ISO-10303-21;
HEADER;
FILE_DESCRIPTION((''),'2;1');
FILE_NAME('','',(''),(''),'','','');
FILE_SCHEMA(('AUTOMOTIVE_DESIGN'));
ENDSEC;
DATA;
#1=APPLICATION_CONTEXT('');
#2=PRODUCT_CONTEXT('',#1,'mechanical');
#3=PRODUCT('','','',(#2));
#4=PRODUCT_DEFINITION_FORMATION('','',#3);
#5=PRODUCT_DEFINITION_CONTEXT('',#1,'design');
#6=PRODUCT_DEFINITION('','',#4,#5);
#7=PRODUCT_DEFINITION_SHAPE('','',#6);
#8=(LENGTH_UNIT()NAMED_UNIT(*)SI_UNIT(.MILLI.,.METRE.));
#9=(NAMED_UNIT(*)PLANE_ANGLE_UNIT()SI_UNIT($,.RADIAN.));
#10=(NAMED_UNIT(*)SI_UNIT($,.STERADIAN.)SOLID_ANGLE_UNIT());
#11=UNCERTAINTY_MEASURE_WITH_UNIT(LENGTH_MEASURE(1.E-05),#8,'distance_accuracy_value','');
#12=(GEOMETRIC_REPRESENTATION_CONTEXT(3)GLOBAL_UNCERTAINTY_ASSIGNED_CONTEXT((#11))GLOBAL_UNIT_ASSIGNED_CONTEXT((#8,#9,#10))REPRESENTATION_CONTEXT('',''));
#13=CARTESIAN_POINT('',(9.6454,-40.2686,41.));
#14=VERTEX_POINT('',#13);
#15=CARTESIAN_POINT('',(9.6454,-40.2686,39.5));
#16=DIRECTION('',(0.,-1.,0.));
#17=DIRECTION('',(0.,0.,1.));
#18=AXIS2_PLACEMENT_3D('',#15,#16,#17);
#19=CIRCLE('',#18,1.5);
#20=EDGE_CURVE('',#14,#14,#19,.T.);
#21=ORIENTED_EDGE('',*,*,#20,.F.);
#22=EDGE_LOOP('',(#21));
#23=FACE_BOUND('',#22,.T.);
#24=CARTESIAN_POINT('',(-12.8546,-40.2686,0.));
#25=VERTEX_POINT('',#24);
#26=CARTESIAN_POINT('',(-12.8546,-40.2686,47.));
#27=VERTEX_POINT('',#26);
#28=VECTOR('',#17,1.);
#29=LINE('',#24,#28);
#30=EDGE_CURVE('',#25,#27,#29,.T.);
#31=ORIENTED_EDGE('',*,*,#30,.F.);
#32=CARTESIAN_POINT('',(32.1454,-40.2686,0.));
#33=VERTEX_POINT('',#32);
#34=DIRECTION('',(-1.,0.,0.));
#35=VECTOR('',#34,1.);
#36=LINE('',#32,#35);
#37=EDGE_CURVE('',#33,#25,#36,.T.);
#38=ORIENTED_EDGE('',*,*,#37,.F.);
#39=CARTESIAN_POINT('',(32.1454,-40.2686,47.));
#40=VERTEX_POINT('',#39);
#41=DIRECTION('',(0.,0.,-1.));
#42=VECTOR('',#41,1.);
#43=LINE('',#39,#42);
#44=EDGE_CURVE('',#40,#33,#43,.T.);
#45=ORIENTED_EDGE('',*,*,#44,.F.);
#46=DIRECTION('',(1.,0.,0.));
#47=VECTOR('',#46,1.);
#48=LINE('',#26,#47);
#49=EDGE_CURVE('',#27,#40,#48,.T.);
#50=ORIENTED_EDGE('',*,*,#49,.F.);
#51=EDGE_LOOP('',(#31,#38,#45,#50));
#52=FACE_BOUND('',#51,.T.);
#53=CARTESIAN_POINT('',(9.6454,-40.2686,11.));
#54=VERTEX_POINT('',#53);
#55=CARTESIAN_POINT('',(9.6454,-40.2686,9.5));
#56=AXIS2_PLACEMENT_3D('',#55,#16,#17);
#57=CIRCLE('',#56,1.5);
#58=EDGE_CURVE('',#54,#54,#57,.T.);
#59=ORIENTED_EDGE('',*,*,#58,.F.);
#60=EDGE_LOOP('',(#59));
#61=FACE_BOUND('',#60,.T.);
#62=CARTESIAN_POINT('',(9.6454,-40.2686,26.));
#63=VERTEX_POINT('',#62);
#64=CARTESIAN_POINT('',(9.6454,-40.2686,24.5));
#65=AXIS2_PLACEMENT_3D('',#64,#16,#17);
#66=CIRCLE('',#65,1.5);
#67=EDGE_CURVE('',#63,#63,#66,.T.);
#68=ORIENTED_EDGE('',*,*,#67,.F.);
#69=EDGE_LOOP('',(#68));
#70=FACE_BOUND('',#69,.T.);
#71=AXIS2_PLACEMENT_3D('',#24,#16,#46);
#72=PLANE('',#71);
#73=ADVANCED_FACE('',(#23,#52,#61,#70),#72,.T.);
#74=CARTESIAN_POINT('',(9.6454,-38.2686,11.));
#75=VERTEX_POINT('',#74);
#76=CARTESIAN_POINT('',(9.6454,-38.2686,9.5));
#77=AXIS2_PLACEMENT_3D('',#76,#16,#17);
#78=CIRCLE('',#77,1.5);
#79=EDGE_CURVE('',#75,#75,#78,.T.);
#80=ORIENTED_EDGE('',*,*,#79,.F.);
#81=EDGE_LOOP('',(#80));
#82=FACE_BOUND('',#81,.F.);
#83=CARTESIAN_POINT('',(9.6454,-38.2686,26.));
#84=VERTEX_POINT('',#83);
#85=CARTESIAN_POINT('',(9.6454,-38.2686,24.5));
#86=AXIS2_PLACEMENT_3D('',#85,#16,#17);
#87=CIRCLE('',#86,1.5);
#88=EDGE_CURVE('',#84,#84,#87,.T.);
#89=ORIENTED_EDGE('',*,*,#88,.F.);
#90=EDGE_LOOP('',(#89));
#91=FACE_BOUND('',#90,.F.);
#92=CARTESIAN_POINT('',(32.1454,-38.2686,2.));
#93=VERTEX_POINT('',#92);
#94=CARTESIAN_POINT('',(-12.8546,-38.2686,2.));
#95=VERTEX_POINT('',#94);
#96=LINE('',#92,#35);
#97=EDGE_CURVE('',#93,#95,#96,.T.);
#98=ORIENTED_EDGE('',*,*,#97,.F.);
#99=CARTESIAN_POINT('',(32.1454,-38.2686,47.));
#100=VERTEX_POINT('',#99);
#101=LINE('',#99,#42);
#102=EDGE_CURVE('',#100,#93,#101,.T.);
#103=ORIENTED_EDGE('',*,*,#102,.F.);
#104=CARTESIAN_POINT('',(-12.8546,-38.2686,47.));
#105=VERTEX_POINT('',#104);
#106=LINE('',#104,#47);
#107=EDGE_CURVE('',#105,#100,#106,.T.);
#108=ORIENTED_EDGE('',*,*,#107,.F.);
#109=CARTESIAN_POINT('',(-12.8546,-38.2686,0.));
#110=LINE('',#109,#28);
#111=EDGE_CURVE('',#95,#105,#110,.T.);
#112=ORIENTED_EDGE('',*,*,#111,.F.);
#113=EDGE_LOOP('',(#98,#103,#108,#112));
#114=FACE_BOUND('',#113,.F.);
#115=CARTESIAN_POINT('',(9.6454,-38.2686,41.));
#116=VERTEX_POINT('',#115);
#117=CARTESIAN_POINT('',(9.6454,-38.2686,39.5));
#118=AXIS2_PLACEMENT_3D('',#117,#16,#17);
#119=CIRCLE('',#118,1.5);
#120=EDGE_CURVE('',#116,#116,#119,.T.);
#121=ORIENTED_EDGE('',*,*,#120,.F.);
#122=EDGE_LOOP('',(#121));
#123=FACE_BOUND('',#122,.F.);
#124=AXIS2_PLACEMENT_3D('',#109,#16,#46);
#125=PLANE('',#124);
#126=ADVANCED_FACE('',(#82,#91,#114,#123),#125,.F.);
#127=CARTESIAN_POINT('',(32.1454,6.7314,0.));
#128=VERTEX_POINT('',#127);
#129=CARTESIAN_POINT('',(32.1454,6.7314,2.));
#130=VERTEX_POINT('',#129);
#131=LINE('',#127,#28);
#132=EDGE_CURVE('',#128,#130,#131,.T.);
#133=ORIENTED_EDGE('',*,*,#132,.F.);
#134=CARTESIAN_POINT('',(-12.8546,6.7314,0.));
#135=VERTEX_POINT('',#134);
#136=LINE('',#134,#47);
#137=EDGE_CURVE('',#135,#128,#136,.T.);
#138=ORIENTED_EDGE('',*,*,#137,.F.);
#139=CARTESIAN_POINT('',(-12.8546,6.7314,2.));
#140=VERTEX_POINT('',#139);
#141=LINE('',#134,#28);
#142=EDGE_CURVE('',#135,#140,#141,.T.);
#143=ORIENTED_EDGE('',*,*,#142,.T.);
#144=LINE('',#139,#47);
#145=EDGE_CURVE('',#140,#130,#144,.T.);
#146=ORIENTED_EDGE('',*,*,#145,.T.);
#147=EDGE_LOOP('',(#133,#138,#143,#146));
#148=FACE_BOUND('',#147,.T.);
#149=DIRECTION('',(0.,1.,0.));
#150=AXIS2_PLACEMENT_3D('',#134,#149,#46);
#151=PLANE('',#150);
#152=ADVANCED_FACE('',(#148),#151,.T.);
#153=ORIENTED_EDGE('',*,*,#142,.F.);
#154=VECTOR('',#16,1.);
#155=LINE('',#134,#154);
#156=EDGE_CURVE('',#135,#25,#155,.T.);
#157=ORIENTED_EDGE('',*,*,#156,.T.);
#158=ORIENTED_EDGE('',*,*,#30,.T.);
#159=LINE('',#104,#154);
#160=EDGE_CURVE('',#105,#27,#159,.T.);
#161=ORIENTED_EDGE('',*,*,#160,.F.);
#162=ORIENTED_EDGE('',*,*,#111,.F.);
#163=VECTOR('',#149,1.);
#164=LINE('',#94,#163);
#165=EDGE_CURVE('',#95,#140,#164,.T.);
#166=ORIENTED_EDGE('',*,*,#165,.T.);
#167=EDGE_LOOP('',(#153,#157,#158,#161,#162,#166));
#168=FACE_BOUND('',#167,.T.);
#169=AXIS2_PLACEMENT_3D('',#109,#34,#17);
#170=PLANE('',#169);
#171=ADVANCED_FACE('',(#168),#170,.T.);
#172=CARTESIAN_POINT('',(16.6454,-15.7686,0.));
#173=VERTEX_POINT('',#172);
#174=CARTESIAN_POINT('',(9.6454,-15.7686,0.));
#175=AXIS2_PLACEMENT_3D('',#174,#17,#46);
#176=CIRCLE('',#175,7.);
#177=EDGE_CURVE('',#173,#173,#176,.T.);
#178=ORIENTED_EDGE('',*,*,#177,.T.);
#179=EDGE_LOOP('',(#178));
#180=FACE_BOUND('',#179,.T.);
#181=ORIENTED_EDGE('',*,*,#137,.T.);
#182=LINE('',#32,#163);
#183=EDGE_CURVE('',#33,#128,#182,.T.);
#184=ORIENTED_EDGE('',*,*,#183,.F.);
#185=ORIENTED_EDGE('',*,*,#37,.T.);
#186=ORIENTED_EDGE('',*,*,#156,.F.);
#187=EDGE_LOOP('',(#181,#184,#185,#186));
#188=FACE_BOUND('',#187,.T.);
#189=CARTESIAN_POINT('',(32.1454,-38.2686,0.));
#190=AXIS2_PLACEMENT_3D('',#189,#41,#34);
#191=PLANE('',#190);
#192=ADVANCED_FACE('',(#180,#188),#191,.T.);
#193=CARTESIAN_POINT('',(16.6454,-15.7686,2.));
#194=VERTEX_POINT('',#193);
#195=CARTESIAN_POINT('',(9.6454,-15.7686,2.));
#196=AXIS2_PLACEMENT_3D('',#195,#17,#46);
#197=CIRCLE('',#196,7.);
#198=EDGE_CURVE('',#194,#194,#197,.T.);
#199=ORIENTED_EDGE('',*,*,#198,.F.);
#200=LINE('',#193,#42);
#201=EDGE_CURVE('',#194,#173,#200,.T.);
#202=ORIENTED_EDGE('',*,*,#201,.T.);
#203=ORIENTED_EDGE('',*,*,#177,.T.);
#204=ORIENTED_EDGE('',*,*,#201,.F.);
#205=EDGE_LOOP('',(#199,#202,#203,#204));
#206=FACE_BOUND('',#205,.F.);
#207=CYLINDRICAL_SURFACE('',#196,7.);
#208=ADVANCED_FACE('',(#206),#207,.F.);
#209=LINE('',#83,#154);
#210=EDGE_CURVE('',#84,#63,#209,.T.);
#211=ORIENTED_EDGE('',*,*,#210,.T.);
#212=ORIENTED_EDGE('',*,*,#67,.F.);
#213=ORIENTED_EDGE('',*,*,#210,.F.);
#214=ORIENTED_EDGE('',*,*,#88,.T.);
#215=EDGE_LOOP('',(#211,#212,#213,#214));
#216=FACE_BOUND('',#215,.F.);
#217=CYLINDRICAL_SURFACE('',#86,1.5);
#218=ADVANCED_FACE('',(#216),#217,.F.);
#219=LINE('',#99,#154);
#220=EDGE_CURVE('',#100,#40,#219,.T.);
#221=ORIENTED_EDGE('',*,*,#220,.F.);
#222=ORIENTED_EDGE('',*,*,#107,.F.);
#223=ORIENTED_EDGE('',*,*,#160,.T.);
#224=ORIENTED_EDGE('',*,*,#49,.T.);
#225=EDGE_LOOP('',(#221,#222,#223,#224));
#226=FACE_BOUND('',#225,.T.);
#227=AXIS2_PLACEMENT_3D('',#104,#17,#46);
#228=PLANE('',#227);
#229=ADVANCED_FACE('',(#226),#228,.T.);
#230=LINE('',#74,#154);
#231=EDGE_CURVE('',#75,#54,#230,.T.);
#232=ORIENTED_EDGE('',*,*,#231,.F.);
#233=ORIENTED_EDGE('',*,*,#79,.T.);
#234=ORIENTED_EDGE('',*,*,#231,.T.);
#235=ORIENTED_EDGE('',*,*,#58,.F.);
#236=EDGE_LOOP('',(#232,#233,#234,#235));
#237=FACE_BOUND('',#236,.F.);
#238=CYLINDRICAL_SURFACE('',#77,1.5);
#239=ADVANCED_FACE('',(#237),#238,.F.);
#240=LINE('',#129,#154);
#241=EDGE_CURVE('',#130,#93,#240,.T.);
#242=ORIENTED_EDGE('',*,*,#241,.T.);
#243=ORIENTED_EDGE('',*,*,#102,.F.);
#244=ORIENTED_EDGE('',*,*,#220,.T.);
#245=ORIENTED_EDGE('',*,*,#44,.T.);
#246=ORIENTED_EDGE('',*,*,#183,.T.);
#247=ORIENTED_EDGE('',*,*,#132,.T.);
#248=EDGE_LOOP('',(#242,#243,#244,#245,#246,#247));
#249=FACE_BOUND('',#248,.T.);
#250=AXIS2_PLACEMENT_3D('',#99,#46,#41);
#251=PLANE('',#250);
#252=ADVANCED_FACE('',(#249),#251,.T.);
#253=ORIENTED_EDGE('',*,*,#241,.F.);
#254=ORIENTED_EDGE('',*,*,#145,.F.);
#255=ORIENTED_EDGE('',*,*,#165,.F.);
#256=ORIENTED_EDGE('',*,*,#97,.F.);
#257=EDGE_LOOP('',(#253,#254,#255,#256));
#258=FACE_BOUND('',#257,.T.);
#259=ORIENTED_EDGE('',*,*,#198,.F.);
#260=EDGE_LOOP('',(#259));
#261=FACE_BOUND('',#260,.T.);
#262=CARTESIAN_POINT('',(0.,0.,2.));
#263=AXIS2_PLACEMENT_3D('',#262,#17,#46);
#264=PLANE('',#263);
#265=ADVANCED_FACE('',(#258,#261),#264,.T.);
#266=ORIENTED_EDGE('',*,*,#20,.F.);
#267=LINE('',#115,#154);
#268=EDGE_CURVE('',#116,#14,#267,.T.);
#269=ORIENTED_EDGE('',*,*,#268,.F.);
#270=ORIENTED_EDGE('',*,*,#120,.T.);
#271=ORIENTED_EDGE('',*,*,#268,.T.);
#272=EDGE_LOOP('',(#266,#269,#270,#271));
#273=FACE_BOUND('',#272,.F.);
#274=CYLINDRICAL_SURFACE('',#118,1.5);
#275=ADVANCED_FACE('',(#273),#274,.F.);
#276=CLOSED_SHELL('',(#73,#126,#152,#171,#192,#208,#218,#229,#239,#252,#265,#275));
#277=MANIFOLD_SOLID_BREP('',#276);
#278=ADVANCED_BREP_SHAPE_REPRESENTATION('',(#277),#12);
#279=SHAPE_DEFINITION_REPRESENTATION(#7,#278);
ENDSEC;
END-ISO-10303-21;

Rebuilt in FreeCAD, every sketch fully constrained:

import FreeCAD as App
import Part
import Sketcher

doc = App.newDocument("Part")
body = doc.addObject("PartDesign::Body", "Body")

# Sketch on XY plane
sketch1 = doc.addObject("Sketcher::SketchObject", "Sketch")
body.addObject(sketch1)
sketch1.AttachmentSupport = (doc.XY_Plane, [""])
sketch1.MapMode = "FlatFace"
sketch1.addGeometry([
    Part.LineSegment(App.Vector(32, 7, 0), App.Vector(-13, 7, 0)),
    Part.LineSegment(App.Vector(-13, 7, 0), App.Vector(-13, -38, 0)),
    Part.LineSegment(App.Vector(-13, -38, 0), App.Vector(32, -38, 0)),
    Part.LineSegment(App.Vector(32, -38, 0), App.Vector(32, 7, 0)),
], False)
sketch1.addConstraint([
    Sketcher.Constraint("Coincident", 0, 2, 1, 1),
    Sketcher.Constraint("Coincident", 1, 2, 2, 1),
    Sketcher.Constraint("Coincident", 2, 2, 3, 1),
    Sketcher.Constraint("Coincident", 3, 2, 0, 1),
    Sketcher.Constraint("Horizontal", 0),
    Sketcher.Constraint("Vertical", 1),
    Sketcher.Constraint("Horizontal", 2),
    Sketcher.Constraint("Vertical", 3),
    Sketcher.Constraint("Equal", 2, 1),
    Sketcher.Constraint("DistanceX", 0, 2, 0, 1, 45.0),
    Sketcher.Constraint("DistanceX", 0, 2, -1, 1, 12.8546),
    Sketcher.Constraint("DistanceY", -1, 1, 0, 2, 6.7314),
])
pad1 = doc.addObject("PartDesign::Pad", "Pad")
body.addObject(pad1)
pad1.Profile = sketch1
pad1.Length = 2

# Sketch on XY plane
sketch2 = doc.addObject("Sketcher::SketchObject", "Sketch001")
body.addObject(sketch2)
sketch2.AttachmentSupport = (doc.XY_Plane, [""])
sketch2.MapMode = "FlatFace"
sketch2.AttachmentOffset = App.Placement(App.Vector(0, 0, 2), App.Rotation())
sketch2.addGeometry(Part.Circle(App.Vector(9.6, -15.8, 0), App.Vector(0, 0, 1), 4), False)
sketch2.addConstraint([
    Sketcher.Constraint("Diameter", 0, 8.0),
    Sketcher.Constraint("DistanceX", -1, 1, 0, 3, 9.6454),
    Sketcher.Constraint("DistanceY", 0, 3, -1, 1, 15.7686),
])
doc.recompute()
hole = doc.addObject("PartDesign::Hole", "Hole")
body.addObject(hole)
hole.Profile = sketch2
hole.ThreadType = "None"
hole.Diameter = 8
hole.DepthType = "Dimension"
hole.Depth = 2
hole.DrillPoint = "Flat"

# Sketch on XZ plane
sketch3 = doc.addObject("Sketcher::SketchObject", "Sketch002")
body.addObject(sketch3)
sketch3.AttachmentSupport = (doc.XZ_Plane, [""])
sketch3.MapMode = "FlatFace"
sketch3.AttachmentOffset = App.Placement(App.Vector(0, 0, 38.2686), App.Rotation())
sketch3.addGeometry([
    Part.LineSegment(App.Vector(32, 47, 0), App.Vector(-13, 47, 0)),
    Part.LineSegment(App.Vector(-13, 47, 0), App.Vector(-13, 0, 0)),
    Part.LineSegment(App.Vector(-13, 0, 0), App.Vector(32, 0, 0)),
    Part.LineSegment(App.Vector(32, 0, 0), App.Vector(32, 47, 0)),
], False)
sketch3.addConstraint([
    Sketcher.Constraint("Coincident", 0, 2, 1, 1),
    Sketcher.Constraint("Coincident", 1, 2, 2, 1),
    Sketcher.Constraint("Coincident", 2, 2, 3, 1),
    Sketcher.Constraint("Coincident", 3, 2, 0, 1),
    Sketcher.Constraint("Horizontal", 0),
    Sketcher.Constraint("Vertical", 1),
    Sketcher.Constraint("Horizontal", 2),
    Sketcher.Constraint("Vertical", 3),
    Sketcher.Constraint("PointOnObject", 1, 2, -1),
    Sketcher.Constraint("DistanceX", 0, 2, 0, 1, 45.0),
    Sketcher.Constraint("DistanceY", 1, 2, 1, 1, 47.0),
    Sketcher.Constraint("DistanceX", 0, 2, -1, 1, 12.8546),
])
pad2 = doc.addObject("PartDesign::Pad", "Pad001")
body.addObject(pad2)
pad2.Profile = sketch3
pad2.Length = 2

# Sketch on XY plane
sketch4 = doc.addObject("Sketcher::SketchObject", "Sketch003")
body.addObject(sketch4)
sketch4.AttachmentSupport = (doc.XY_Plane, [""])
sketch4.MapMode = "FlatFace"
sketch4.AttachmentOffset = App.Placement(App.Vector(0, 0, 2), App.Rotation())
sketch4.addGeometry(Part.Circle(App.Vector(10, -16, 0), App.Vector(0, 0, 1), 7), False)
sketch4.addConstraint([
    Sketcher.Constraint("Diameter", 0, 14.0),
    Sketcher.Constraint("DistanceX", -1, 1, 0, 3, 9.6454),
    Sketcher.Constraint("DistanceY", 0, 3, -1, 1, 15.7686),
])
pocket1 = doc.addObject("PartDesign::Pocket", "Pocket")
body.addObject(pocket1)
pocket1.Profile = sketch4
pocket1.Length = 2

# Sketch on XZ plane
sketch5 = doc.addObject("Sketcher::SketchObject", "Sketch004")
body.addObject(sketch5)
sketch5.AttachmentSupport = (doc.XZ_Plane, [""])
sketch5.MapMode = "FlatFace"
sketch5.AttachmentOffset = App.Placement(App.Vector(0, 0, 38.2686), App.Rotation())
sketch5.addGeometry([
    Part.Circle(App.Vector(9.6, 39.5, 0), App.Vector(0, 0, 1), 1.5),
    Part.Circle(App.Vector(9.6, 24.5, 0), App.Vector(0, 0, 1), 1.5),
    Part.Circle(App.Vector(9.6, 9.5, 0), App.Vector(0, 0, 1), 1.5),
], False)
sketch5.addConstraint([
    Sketcher.Constraint("Equal", 0, 1),
    Sketcher.Constraint("Equal", 1, 2),
    Sketcher.Constraint("Vertical", 0, 3, 1, 3),
    Sketcher.Constraint("Vertical", 1, 3, 2, 3),
    Sketcher.Constraint("Diameter", 0, 3.0),
    Sketcher.Constraint("DistanceY", 1, 3, 0, 3, 15.0),
    Sketcher.Constraint("DistanceY", 2, 3, 1, 3, 15.0),
    Sketcher.Constraint("DistanceY", -1, 1, 0, 3, 39.5),
    Sketcher.Constraint("DistanceX", -1, 1, 0, 3, 9.6454),
])
doc.recompute()
hole2 = doc.addObject("PartDesign::Hole", "Hole001")
body.addObject(hole2)
hole2.Profile = sketch5
hole2.ThreadType = "None"
hole2.Diameter = 3
hole2.DepthType = "Dimension"
hole2.Depth = 2
hole2.DrillPoint = "Flat"
hole2.Reversed = True

doc.recompute()
